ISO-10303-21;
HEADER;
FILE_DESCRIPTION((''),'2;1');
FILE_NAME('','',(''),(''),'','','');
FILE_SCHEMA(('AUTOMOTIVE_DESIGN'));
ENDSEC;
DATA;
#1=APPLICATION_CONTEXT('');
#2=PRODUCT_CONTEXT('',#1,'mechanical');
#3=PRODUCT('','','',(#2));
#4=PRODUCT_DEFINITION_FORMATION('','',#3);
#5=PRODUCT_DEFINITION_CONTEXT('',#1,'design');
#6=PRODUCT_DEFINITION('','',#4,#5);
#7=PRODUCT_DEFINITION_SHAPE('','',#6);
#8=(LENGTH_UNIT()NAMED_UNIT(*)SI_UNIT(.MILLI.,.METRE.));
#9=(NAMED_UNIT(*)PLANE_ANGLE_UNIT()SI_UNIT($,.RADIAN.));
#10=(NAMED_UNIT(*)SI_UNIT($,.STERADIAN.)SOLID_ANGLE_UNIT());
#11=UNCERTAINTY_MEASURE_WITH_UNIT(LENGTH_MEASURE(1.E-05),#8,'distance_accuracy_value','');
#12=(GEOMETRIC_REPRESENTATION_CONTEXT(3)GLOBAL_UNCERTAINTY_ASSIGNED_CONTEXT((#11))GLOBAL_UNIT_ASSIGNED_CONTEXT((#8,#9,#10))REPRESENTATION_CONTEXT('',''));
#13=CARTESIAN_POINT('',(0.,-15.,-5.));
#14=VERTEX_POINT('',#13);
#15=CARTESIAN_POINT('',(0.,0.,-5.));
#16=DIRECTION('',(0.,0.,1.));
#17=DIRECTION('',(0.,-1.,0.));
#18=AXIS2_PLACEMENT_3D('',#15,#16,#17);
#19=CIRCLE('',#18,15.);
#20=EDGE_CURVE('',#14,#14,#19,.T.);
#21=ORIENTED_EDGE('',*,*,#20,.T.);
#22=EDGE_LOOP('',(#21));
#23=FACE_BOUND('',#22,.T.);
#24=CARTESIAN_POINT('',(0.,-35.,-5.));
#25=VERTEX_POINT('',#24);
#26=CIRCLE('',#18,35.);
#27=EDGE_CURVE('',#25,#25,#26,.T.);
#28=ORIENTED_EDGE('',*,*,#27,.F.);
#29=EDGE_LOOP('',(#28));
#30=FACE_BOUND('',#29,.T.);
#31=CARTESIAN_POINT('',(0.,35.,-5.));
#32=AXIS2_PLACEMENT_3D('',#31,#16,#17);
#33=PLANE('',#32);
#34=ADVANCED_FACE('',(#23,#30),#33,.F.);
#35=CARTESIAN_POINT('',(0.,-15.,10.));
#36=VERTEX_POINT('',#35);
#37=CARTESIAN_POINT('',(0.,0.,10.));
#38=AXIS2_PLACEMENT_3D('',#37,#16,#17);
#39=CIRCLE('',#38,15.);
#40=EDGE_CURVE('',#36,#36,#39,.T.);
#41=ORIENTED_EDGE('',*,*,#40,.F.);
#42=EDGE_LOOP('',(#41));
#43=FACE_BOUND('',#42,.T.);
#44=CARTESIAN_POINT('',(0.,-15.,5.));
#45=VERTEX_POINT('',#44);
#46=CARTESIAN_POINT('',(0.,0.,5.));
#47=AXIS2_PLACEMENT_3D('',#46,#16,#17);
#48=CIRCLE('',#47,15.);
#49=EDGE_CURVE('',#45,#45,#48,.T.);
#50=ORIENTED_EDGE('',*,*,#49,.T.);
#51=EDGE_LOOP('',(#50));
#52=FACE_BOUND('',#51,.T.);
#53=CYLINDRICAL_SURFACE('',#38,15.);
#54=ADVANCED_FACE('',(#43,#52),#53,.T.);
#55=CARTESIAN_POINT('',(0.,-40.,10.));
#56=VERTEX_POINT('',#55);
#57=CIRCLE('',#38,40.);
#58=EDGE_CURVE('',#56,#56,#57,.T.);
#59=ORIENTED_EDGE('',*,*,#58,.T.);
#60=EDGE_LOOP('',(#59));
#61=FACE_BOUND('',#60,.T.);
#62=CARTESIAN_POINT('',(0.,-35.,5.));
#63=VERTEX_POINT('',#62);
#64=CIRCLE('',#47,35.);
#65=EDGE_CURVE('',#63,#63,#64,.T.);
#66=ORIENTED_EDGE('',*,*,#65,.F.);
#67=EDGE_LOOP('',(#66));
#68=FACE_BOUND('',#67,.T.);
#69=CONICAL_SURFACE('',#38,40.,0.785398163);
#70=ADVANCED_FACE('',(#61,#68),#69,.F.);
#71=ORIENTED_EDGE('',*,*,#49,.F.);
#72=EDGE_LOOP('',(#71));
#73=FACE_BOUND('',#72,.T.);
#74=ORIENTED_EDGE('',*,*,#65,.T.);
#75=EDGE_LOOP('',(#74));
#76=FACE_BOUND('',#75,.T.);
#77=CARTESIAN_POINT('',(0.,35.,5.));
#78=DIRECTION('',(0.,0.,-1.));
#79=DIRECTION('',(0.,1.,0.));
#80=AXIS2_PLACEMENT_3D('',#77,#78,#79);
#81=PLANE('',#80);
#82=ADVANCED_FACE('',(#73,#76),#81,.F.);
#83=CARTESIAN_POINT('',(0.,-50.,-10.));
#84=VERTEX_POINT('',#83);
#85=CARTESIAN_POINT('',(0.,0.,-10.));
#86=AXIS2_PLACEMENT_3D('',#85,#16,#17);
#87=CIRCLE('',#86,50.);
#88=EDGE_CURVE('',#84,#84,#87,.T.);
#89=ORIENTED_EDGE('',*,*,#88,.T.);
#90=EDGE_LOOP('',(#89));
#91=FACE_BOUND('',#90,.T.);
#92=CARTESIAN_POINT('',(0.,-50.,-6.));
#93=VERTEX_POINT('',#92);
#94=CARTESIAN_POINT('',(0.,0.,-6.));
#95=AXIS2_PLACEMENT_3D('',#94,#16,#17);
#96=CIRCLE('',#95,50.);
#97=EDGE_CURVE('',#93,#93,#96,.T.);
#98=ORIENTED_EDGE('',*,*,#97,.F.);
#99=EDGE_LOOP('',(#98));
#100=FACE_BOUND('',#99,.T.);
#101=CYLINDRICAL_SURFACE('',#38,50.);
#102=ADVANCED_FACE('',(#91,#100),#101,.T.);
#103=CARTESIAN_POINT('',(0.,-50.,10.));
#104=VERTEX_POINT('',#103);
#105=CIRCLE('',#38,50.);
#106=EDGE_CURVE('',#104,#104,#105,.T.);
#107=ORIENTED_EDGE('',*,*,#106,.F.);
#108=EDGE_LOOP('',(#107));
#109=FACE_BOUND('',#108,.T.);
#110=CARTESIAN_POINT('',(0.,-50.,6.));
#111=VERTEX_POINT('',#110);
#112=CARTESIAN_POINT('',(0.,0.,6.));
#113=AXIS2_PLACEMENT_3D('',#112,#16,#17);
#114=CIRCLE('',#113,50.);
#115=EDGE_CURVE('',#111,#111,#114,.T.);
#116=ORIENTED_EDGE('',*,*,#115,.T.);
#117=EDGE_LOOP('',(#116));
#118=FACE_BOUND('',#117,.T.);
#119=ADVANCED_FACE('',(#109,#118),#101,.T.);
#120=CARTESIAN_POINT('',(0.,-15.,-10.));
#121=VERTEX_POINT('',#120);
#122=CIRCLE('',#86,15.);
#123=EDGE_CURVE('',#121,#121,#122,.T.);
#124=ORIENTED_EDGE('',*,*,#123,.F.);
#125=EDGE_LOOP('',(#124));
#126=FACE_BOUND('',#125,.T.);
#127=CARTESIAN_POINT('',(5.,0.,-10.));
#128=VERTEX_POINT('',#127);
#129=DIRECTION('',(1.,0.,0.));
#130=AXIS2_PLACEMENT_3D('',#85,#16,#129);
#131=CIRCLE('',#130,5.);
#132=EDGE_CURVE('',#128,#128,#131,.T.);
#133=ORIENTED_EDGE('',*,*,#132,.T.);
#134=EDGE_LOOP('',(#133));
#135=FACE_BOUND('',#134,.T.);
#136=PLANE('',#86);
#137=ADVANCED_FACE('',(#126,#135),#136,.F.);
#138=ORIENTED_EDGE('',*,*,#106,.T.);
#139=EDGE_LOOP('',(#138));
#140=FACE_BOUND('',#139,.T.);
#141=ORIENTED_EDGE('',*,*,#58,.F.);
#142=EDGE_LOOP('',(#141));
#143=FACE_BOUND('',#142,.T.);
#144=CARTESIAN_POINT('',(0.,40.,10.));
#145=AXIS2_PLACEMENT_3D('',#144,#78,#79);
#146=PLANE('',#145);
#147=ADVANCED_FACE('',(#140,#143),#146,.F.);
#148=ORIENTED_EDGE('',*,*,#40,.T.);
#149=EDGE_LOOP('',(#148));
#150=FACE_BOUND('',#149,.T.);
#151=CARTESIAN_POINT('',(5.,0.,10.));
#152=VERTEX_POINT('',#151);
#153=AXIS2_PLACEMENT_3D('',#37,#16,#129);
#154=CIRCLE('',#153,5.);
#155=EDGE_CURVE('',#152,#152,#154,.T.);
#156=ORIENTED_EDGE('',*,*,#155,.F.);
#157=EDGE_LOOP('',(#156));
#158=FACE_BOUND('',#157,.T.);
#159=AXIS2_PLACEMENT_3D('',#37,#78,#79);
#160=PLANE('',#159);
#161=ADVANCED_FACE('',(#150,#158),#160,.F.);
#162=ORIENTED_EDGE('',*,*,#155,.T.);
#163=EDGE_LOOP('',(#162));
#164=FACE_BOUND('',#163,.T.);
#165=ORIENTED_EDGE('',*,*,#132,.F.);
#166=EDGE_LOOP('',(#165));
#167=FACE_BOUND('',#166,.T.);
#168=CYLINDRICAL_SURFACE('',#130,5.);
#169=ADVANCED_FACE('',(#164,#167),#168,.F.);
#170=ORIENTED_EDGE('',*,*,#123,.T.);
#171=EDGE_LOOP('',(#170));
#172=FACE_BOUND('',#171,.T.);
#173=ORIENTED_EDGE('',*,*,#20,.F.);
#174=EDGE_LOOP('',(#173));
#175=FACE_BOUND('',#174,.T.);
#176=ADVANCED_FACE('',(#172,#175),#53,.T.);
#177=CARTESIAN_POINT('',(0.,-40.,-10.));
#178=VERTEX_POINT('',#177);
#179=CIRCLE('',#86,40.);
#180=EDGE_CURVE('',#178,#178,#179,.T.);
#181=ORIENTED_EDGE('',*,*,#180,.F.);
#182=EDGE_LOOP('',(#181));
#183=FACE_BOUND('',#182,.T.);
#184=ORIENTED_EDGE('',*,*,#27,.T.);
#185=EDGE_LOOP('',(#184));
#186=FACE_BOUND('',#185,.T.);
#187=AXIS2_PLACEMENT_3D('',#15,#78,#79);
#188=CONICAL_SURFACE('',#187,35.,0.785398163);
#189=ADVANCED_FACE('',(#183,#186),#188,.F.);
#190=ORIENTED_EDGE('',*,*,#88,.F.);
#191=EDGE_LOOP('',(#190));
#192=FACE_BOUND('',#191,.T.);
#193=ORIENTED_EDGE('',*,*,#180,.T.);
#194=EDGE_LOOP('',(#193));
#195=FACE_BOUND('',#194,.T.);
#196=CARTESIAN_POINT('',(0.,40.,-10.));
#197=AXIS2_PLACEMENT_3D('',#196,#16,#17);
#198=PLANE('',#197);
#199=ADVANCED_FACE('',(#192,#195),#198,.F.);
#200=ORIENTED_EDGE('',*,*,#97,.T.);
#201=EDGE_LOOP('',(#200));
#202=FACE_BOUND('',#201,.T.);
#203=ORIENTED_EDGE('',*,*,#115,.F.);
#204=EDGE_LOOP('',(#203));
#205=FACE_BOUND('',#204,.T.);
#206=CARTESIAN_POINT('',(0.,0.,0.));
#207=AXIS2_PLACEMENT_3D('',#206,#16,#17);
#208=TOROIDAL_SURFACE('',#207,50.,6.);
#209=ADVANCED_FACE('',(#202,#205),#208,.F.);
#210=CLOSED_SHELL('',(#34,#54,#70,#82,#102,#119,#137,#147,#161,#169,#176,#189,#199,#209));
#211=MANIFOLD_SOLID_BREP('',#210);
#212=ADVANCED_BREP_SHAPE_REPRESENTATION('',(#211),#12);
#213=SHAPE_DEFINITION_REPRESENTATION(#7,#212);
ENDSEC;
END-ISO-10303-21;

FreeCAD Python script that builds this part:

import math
import FreeCAD as App
import Part
import Sketcher
Q = App.Units.Quantity

doc = App.newDocument("Part")
body = doc.addObject("PartDesign::Body", "Body")

# Sketch on YZ plane
sketch1 = doc.addObject("Sketcher::SketchObject", "Sketch")
body.addObject(sketch1)
sketch1.AttachmentSupport = (doc.YZ_Plane, [""])
sketch1.MapMode = "FlatFace"
sketch1.addGeometry([
    Part.LineSegment(App.Vector(50, -10, 0), App.Vector(50, -6, 0)),  # 0
    Part.ArcOfCircle(Part.Circle(App.Vector(50, 0, 0), App.Vector(0, 0, 1), 6), math.radians(90), math.radians(270)),  # 1
    Part.LineSegment(App.Vector(50, 6, 0), App.Vector(50, 10, 0)),  # 2
    Part.LineSegment(App.Vector(50, 10, 0), App.Vector(40, 10, 0)),  # 3
    Part.LineSegment(App.Vector(40, 10, 0), App.Vector(35, 5, 0)),  # 4
    Part.LineSegment(App.Vector(35, 5, 0), App.Vector(15, 5, 0)),  # 5
    Part.LineSegment(App.Vector(15, 5, 0), App.Vector(15, 10, 0)),  # 6
    Part.LineSegment(App.Vector(15, 10, 0), App.Vector(0, 10, 0)),  # 7
    Part.LineSegment(App.Vector(0, 10, 0), App.Vector(0, -10, 0)),  # 8
    Part.LineSegment(App.Vector(0, -10, 0), App.Vector(15, -10, 0)),  # 9
    Part.LineSegment(App.Vector(15, -10, 0), App.Vector(15, -5, 0)),  # 10
    Part.LineSegment(App.Vector(15, -5, 0), App.Vector(35, -5, 0)),  # 11
    Part.LineSegment(App.Vector(35, -5, 0), App.Vector(40, -10, 0)),  # 12
    Part.LineSegment(App.Vector(40, -10, 0), App.Vector(50, -10, 0)),  # 13
], False)
sketch1.addConstraint([
    Sketcher.Constraint("Coincident", 0, 2, 1, 2),
    Sketcher.Constraint("Coincident", 1, 1, 2, 1),
    Sketcher.Constraint("Coincident", 2, 2, 3, 1),
    Sketcher.Constraint("Coincident", 3, 2, 4, 1),
    Sketcher.Constraint("Coincident", 4, 2, 5, 1),
    Sketcher.Constraint("Coincident", 5, 2, 6, 1),
    Sketcher.Constraint("Coincident", 6, 2, 7, 1),
    Sketcher.Constraint("Coincident", 7, 2, 8, 1),
    Sketcher.Constraint("Coincident", 8, 2, 9, 1),
    Sketcher.Constraint("Coincident", 9, 2, 10, 1),
    Sketcher.Constraint("Coincident", 10, 2, 11, 1),
    Sketcher.Constraint("Coincident", 11, 2, 12, 1),
    Sketcher.Constraint("Coincident", 12, 2, 13, 1),
    Sketcher.Constraint("Coincident", 13, 2, 0, 1),
    Sketcher.Constraint("Vertical", 0),
    Sketcher.Constraint("Vertical", 2),
    Sketcher.Constraint("Horizontal", 3),
    Sketcher.Constraint("Horizontal", 5),
    Sketcher.Constraint("Vertical", 6),
    Sketcher.Constraint("Horizontal", 7),
    Sketcher.Constraint("Vertical", 8),
    Sketcher.Constraint("Horizontal", 9),
    Sketcher.Constraint("Vertical", 10),
    Sketcher.Constraint("Horizontal", 11),
    Sketcher.Constraint("Horizontal", 13),
    Sketcher.Constraint("Symmetric", 7, 2, 8, 2, -1, 1),
    Sketcher.Constraint("Symmetric", 0, 2, 1, 1, -1),
    Sketcher.Constraint("Symmetric", 5, 2, 10, 2, -1),
    Sketcher.Constraint("Symmetric", 3, 2, 12, 2, -1),
    Sketcher.Constraint("Perpendicular", 4, 12),
    Sketcher.Constraint("Horizontal", 3, 2, 6, 2),
    Sketcher.Constraint("Vertical", 1, 3, 0, 2),
    Sketcher.Constraint("Vertical", 4, 2, 11, 2),
    Sketcher.Constraint("Equal", 11, 8),
    Sketcher.Constraint("Radius", 1, Q("6 mm")),
    Sketcher.Constraint("DistanceX", 3, 2, 3, 1, Q("10 mm")),
    Sketcher.Constraint("DistanceX", 5, 2, 5, 1, Q("20 mm")),
    Sketcher.Constraint("DistanceX", 7, 2, 7, 1, Q("15 mm")),
    Sketcher.Constraint("DistanceY", 6, 1, 6, 2, Q("5 mm")),
])
revolution = doc.addObject("PartDesign::Revolution", "Revolution")
body.addObject(revolution)
revolution.Profile = sketch1
revolution.ReferenceAxis = (sketch1, ["V_Axis"])
revolution.Angle = 360

# Sketch on XY plane
sketch2 = doc.addObject("Sketcher::SketchObject", "Sketch001")
body.addObject(sketch2)
sketch2.AttachmentSupport = (doc.XY_Plane, [""])
sketch2.MapMode = "FlatFace"
sketch2.AttachmentOffset = App.Placement(App.Vector(0, 0, 10), App.Rotation())
sketch2.addGeometry(Part.Circle(App.Vector(0, 0, 0), App.Vector(0, 0, 1), 5), False)
sketch2.addConstraint([
    Sketcher.Constraint("Coincident", 0, 3, -1, 1),
    Sketcher.Constraint("Diameter", 0, Q("10 mm")),
])
pocket1 = doc.addObject("PartDesign::Pocket", "Pocket")
body.addObject(pocket1)
pocket1.Profile = sketch2
pocket1.Type = "ThroughAll"

doc.recompute()
